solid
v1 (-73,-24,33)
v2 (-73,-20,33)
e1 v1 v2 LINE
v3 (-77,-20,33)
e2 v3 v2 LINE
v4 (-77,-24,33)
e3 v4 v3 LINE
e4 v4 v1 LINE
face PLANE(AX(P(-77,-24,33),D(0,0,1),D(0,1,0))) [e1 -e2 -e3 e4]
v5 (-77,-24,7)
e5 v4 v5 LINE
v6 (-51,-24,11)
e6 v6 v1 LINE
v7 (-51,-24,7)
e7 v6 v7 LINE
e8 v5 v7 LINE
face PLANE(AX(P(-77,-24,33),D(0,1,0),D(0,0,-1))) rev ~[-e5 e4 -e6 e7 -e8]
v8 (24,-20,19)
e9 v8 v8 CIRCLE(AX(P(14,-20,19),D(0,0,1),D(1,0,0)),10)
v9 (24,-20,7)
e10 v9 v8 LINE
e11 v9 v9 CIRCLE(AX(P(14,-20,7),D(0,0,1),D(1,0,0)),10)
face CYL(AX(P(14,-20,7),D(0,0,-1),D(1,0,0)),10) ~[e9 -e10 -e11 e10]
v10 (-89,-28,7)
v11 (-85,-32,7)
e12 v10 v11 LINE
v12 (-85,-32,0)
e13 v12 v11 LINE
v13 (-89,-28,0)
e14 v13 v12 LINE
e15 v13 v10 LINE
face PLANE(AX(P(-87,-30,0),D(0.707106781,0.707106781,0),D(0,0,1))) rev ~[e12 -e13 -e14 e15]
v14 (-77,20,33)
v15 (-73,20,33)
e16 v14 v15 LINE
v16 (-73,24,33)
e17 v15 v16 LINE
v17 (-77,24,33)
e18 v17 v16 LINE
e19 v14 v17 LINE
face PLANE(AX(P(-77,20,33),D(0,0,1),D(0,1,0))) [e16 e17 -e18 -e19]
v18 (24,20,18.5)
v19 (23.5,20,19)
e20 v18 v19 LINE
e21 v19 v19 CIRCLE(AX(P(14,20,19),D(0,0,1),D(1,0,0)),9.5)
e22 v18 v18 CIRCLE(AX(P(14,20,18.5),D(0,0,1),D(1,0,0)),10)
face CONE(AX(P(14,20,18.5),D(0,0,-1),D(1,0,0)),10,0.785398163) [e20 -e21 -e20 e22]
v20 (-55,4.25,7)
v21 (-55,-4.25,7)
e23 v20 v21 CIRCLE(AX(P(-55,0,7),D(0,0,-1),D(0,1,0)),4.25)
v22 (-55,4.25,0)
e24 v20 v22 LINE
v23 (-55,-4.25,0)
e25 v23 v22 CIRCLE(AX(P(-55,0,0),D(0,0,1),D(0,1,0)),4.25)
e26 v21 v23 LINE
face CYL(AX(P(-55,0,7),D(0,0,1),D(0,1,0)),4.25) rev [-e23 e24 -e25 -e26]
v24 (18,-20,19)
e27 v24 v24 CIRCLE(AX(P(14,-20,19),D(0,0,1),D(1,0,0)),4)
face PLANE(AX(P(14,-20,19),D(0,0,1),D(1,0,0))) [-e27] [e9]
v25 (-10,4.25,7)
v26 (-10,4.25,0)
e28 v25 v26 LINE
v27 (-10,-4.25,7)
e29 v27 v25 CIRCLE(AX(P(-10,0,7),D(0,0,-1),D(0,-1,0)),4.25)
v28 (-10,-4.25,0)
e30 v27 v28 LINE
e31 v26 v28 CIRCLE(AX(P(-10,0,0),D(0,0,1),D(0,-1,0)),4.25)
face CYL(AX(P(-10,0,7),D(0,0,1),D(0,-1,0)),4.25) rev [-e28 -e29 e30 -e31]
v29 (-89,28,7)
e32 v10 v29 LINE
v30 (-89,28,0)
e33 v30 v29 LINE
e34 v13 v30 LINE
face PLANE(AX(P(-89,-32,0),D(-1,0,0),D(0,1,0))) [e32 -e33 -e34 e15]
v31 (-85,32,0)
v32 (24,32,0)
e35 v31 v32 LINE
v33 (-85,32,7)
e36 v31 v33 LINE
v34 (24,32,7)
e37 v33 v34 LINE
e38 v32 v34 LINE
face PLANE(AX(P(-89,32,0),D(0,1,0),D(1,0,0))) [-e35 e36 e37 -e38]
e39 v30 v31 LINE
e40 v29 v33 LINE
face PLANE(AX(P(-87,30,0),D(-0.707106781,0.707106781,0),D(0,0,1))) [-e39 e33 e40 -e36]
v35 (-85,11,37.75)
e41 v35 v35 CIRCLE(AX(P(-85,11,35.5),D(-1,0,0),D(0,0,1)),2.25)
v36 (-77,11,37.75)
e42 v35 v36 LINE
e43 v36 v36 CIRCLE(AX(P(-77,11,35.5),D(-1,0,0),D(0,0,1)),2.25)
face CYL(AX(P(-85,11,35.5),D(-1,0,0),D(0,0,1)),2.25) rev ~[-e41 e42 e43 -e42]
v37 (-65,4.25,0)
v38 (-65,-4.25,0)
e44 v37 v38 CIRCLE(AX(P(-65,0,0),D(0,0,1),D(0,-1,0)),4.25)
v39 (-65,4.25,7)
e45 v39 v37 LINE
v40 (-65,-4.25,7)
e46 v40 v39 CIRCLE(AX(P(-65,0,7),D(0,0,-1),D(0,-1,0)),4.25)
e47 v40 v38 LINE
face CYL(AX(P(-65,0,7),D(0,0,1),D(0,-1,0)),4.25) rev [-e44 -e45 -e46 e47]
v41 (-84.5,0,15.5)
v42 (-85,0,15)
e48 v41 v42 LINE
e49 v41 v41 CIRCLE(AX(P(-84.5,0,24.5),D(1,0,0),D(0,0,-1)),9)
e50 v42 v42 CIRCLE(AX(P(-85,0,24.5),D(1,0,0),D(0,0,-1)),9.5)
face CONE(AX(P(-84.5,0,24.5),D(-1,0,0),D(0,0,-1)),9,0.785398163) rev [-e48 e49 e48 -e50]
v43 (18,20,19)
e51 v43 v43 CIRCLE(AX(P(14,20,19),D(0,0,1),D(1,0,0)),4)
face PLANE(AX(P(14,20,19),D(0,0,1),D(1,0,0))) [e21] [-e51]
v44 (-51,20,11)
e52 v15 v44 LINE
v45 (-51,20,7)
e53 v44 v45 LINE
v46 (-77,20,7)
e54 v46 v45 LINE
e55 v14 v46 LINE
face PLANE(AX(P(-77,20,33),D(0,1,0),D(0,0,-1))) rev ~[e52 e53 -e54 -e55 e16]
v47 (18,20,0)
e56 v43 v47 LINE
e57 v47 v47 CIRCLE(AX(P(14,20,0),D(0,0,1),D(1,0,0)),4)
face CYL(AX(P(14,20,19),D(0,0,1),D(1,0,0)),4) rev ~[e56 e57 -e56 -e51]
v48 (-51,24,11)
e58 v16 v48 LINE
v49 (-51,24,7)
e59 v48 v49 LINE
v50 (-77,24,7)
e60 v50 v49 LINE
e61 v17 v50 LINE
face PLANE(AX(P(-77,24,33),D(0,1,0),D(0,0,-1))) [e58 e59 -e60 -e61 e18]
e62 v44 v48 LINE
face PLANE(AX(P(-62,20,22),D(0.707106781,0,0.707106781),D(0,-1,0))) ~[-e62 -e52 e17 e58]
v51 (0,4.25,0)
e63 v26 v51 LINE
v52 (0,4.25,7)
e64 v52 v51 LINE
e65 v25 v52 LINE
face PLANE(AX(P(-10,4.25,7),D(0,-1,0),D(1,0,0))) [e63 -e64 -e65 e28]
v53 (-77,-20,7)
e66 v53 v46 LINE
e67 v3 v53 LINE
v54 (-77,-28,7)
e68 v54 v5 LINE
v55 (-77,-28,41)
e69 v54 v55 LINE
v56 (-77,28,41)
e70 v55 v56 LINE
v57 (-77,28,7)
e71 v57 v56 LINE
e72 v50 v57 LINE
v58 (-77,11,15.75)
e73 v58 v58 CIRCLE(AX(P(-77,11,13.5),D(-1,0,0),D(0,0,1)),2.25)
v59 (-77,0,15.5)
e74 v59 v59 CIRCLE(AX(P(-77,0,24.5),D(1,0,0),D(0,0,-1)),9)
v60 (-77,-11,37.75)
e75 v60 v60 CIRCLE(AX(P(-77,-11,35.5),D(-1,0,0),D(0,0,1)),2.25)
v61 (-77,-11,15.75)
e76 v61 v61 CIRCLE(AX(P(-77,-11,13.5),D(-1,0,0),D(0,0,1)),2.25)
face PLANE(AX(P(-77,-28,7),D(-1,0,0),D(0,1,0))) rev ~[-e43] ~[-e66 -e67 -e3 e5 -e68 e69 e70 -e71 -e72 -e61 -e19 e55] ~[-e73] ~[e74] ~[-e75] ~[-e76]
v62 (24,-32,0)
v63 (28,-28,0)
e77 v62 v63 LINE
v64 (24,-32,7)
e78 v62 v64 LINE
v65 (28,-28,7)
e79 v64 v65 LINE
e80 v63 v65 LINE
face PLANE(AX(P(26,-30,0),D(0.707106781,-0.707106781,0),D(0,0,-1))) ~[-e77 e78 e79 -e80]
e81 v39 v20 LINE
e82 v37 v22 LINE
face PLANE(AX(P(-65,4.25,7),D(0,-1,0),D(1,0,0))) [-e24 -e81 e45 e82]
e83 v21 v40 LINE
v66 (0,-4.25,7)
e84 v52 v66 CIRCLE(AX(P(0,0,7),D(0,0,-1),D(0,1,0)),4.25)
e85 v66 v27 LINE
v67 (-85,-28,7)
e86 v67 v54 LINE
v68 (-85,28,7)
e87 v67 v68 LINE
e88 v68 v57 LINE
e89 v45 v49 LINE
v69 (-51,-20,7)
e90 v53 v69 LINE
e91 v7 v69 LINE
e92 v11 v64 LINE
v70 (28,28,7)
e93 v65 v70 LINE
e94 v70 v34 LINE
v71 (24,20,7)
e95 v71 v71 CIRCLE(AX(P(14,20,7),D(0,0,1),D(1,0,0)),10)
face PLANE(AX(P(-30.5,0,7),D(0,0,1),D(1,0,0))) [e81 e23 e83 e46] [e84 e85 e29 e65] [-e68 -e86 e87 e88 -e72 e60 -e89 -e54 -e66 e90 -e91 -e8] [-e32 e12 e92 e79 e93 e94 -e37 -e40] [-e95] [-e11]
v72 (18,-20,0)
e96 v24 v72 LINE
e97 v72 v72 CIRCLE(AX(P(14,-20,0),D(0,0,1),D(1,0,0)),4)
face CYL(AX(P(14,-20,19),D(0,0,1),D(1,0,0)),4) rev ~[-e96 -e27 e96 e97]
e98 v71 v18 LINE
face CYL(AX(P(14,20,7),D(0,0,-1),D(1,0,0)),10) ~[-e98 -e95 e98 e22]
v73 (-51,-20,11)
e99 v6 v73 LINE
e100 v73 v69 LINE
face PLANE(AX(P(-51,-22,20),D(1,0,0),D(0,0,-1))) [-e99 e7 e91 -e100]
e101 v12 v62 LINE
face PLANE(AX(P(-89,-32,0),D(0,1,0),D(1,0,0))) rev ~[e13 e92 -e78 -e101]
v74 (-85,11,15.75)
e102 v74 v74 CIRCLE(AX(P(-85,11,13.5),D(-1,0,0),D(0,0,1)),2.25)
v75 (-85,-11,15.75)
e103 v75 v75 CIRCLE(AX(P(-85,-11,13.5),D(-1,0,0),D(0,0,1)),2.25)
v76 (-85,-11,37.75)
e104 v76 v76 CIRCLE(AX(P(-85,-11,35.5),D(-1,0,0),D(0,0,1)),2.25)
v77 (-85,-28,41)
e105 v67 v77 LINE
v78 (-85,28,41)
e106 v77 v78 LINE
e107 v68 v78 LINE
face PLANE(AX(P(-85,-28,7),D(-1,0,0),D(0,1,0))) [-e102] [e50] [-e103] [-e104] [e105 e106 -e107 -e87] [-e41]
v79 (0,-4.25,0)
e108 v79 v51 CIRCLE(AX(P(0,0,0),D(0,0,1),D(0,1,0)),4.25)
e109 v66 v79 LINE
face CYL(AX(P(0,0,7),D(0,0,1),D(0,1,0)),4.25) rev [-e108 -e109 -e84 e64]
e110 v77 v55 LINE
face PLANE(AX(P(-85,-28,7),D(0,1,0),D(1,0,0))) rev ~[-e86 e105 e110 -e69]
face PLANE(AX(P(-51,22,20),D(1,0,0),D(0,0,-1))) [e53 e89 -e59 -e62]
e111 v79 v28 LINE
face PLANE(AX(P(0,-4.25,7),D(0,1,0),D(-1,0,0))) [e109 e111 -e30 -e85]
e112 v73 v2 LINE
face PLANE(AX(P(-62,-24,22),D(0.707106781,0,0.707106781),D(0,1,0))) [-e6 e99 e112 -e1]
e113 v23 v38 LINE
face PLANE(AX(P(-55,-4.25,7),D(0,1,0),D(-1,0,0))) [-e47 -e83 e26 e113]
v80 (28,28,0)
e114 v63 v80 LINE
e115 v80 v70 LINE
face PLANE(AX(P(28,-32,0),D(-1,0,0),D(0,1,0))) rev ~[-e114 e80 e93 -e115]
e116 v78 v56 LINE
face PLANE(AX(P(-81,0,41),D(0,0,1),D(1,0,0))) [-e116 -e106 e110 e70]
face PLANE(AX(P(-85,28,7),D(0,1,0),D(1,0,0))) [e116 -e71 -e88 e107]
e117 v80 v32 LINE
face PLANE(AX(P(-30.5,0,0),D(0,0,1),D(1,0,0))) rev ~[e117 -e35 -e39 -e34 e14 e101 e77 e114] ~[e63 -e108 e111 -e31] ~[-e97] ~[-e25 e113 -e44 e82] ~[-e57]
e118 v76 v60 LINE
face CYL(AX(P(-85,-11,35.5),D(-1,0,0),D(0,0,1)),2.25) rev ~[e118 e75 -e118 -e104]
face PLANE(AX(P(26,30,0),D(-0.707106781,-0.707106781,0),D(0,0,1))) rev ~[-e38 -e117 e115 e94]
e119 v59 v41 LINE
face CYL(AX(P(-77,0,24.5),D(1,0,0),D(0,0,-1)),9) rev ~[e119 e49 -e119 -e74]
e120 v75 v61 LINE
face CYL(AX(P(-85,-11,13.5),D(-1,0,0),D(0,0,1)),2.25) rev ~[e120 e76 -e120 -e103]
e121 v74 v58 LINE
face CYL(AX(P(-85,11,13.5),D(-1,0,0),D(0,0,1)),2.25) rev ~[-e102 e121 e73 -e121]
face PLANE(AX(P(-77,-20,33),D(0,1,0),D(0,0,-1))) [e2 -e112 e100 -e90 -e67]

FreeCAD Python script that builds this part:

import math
import FreeCAD as App
import Part
import Sketcher
from FreeCAD import Vector


def edges_at(feature, points):
    """Names of the edges that pass closest to the given points."""
    edges = feature.Shape.Edges
    near = lambda p: min(range(len(edges)), key=lambda i: edges[i].distToShape(Part.Vertex(*p))[0])
    return sorted({f"Edge{near(p) + 1}" for p in points})


def add_polygon(sketch, points):
    """Adds a closed chain of lines whose ends are joined by coincident constraints."""
    first, n = sketch.GeometryCount, len(points)
    for a, b in zip(points, points[1:] + points[:1]):
        sketch.addGeometry(Part.LineSegment(App.Vector(*a, 0), App.Vector(*b, 0)), False)
    for i in range(n):
        sketch.addConstraint(Sketcher.Constraint("Coincident", first + i, 2, first + (i + 1) % n, 1))

doc = App.newDocument("Part")
body = doc.addObject("PartDesign::Body", "Body")

# Sketch on XY plane
sketch1 = body.newObject("Sketcher::SketchObject", "Sketch")
sketch1.AttachmentSupport = (doc.getObject("XY_Plane"), [""])
sketch1.MapMode = "FlatFace"
add_polygon(sketch1, [(-89, 32), (-89, -32), (28, -32), (28, 32)])  # lines 0-3
sketch1.addConstraint(Sketcher.Constraint("Vertical", 0))
sketch1.addConstraint(Sketcher.Constraint("Horizontal", 1))
sketch1.addConstraint(Sketcher.Constraint("Vertical", 2))
sketch1.addConstraint(Sketcher.Constraint("Horizontal", 3))
sketch1.addConstraint(Sketcher.Constraint("DistanceX", 1, 1, 1, 2, 117.0))
sketch1.addConstraint(Sketcher.Constraint("DistanceY", 0, 2, 0, 1, 64.0))
sketch1.addConstraint(Sketcher.Constraint("DistanceX", 0, 2, -1, 1, 89.0))
sketch1.addConstraint(Sketcher.Constraint("DistanceY", 0, 2, -1, 1, 32.0))
pad1 = body.newObject("PartDesign::Pad", "Pad")
pad1.Profile = sketch1
pad1.Length = 7
doc.recompute()

chamfer = body.newObject("PartDesign::Chamfer", "Chamfer")
chamfer.Base = (pad1, edges_at(pad1, [
    (-89, 32, 3.5),
    (28, 32, 3.5),
    (28, -32, 3.5),
    (-89, -32, 3.5),
]))
chamfer.Size = 4

# Sketch on XY plane
sketch2 = body.newObject("Sketcher::SketchObject", "Sketch001")
sketch2.AttachmentSupport = (doc.getObject("XY_Plane"), [""])
sketch2.MapMode = "FlatFace"
sketch2.AttachmentOffset = App.Placement(Vector(0, 0, 7), App.Rotation())
sketch2.addGeometry(Part.Circle(Vector(14, 20, 0), Vector(0, 0, 1), 10), False)
sketch2.addConstraint(Sketcher.Constraint("Diameter", 0, 20.0))
sketch2.addConstraint(Sketcher.Constraint("DistanceX", -1, 1, 0, 3, 14.0))
sketch2.addConstraint(Sketcher.Constraint("DistanceY", -1, 1, 0, 3, 20.0))
pad2 = body.newObject("PartDesign::Pad", "Pad001")
pad2.Profile = sketch2
pad2.Length = 12
doc.recompute()

chamfer2 = body.newObject("PartDesign::Chamfer", "Chamfer001")
chamfer2.Base = (pad2, edges_at(pad2, [(4, 20, 19)]))
chamfer2.Size = 0.5

# Sketch on XY plane
sketch3 = body.newObject("Sketcher::SketchObject", "Sketch002")
sketch3.AttachmentSupport = (doc.getObject("XY_Plane"), [""])
sketch3.MapMode = "FlatFace"
sketch3.AttachmentOffset = App.Placement(Vector(0, 0, 7), App.Rotation())
sketch3.addGeometry(Part.Circle(Vector(14, -20, 0), Vector(0, 0, 1), 10), False)
sketch3.addConstraint(Sketcher.Constraint("Diameter", 0, 20.0))
sketch3.addConstraint(Sketcher.Constraint("DistanceX", -1, 1, 0, 3, 14.0))
sketch3.addConstraint(Sketcher.Constraint("DistanceY", 0, 3, -1, 1, 20.0))
pad3 = body.newObject("PartDesign::Pad", "Pad002")
pad3.Profile = sketch3
pad3.Length = 12

# Sketch on XY plane
sketch4 = body.newObject("Sketcher::SketchObject", "Sketch003")
sketch4.AttachmentSupport = (doc.getObject("XY_Plane"), [""])
sketch4.MapMode = "FlatFace"
sketch4.AttachmentOffset = App.Placement(Vector(0, 0, 7), App.Rotation())
add_polygon(sketch4, [(-85, 28), (-85, -28), (-77, -28), (-77, 28)])  # lines 0-3
sketch4.addConstraint(Sketcher.Constraint("Vertical", 0))
sketch4.addConstraint(Sketcher.Constraint("Horizontal", 1))
sketch4.addConstraint(Sketcher.Constraint("Vertical", 2))
sketch4.addConstraint(Sketcher.Constraint("Horizontal", 3))
sketch4.addConstraint(Sketcher.Constraint("DistanceX", 1, 1, 1, 2, 8.0))
sketch4.addConstraint(Sketcher.Constraint("DistanceY", 0, 2, 0, 1, 56.0))
sketch4.addConstraint(Sketcher.Constraint("DistanceX", 0, 2, -1, 1, 85.0))
sketch4.addConstraint(Sketcher.Constraint("DistanceY", 0, 2, -1, 1, 28.0))
pad4 = body.newObject("PartDesign::Pad", "Pad003")
pad4.Profile = sketch4
pad4.Length = 34

# Sketch on YZ plane
sketch5 = body.newObject("Sketcher::SketchObject", "Sketch004")
sketch5.AttachmentSupport = (doc.getObject("YZ_Plane"), [""])
sketch5.MapMode = "FlatFace"
sketch5.AttachmentOffset = App.Placement(Vector(0, 0, -77), App.Rotation())
add_polygon(sketch5, [(-20, 33), (-24, 33), (-24, 7), (-20, 7)])  # lines 0-3
sketch5.addConstraint(Sketcher.Constraint("Horizontal", 0))
sketch5.addConstraint(Sketcher.Constraint("Vertical", 1))
sketch5.addConstraint(Sketcher.Constraint("Horizontal", 2))
sketch5.addConstraint(Sketcher.Constraint("Vertical", 3))
sketch5.addConstraint(Sketcher.Constraint("DistanceX", 0, 2, 0, 1, 4.0))
sketch5.addConstraint(Sketcher.Constraint("DistanceY", 1, 2, 1, 1, 26.0))
sketch5.addConstraint(Sketcher.Constraint("DistanceX", 0, 2, -1, 1, 24.0))
sketch5.addConstraint(Sketcher.Constraint("DistanceY", -1, 1, 0, 2, 33.0))
pad5 = body.newObject("PartDesign::Pad", "Pad004")
pad5.Profile = sketch5
pad5.Length = 26
doc.recompute()

chamfer3 = body.newObject("PartDesign::Chamfer", "Chamfer002")
chamfer3.Base = (pad5, edges_at(pad5, [(-51, -22, 33)]))
chamfer3.Size = 22

# Sketch on YZ plane
sketch6 = body.newObject("Sketcher::SketchObject", "Sketch005")
sketch6.AttachmentSupport = (doc.getObject("YZ_Plane"), [""])
sketch6.MapMode = "FlatFace"
sketch6.AttachmentOffset = App.Placement(Vector(0, 0, -77), App.Rotation())
add_polygon(sketch6, [(24, 33), (20, 33), (20, 7), (24, 7)])  # lines 0-3
sketch6.addConstraint(Sketcher.Constraint("Horizontal", 0))
sketch6.addConstraint(Sketcher.Constraint("Vertical", 1))
sketch6.addConstraint(Sketcher.Constraint("Horizontal", 2))
sketch6.addConstraint(Sketcher.Constraint("Vertical", 3))
sketch6.addConstraint(Sketcher.Constraint("DistanceX", 0, 2, 0, 1, 4.0))
sketch6.addConstraint(Sketcher.Constraint("DistanceY", 1, 2, 1, 1, 26.0))
sketch6.addConstraint(Sketcher.Constraint("DistanceX", -1, 1, 0, 2, 20.0))
sketch6.addConstraint(Sketcher.Constraint("DistanceY", -1, 1, 0, 2, 33.0))
pad6 = body.newObject("PartDesign::Pad", "Pad005")
pad6.Profile = sketch6
pad6.Length = 26
doc.recompute()

chamfer4 = body.newObject("PartDesign::Chamfer", "Chamfer003")
chamfer4.Base = (pad6, edges_at(pad6, [(-51, 22, 33)]))
chamfer4.Size = 22

# Sketch on YZ plane
sketch7 = body.newObject("Sketcher::SketchObject", "Sketch006")
sketch7.AttachmentSupport = (doc.getObject("YZ_Plane"), [""])
sketch7.MapMode = "FlatFace"
sketch7.AttachmentOffset = App.Placement(Vector(0, 0, -77), App.Rotation())
sketch7.addGeometry(Part.Circle(Vector(0, 24, 0), Vector(0, 0, 1), 9), False)
sketch7.addConstraint(Sketcher.Constraint("PointOnObject", 0, 3, -2))
sketch7.addConstraint(Sketcher.Constraint("Diameter", 0, 18.0))
sketch7.addConstraint(Sketcher.Constraint("DistanceY", -1, 1, 0, 3, 24.5))
pocket1 = body.newObject("PartDesign::Pocket", "Pocket")
pocket1.Profile = sketch7
pocket1.Type = "ThroughAll"
doc.recompute()

chamfer5 = body.newObject("PartDesign::Chamfer", "Chamfer004")
chamfer5.Base = (pocket1, edges_at(pocket1, [(-85, 0, 33.5)]))
chamfer5.Size = 0.5

# Sketch on XY plane
sketch8 = body.newObject("Sketcher::SketchObject", "Sketch007")
sketch8.AttachmentSupport = (doc.getObject("XY_Plane"), [""])
sketch8.MapMode = "FlatFace"
sketch8.AttachmentOffset = App.Placement(Vector(0, 0, 19), App.Rotation())
sketch8.addGeometry(Part.Circle(Vector(14, 20, 0), Vector(0, 0, 1), 4), False)
sketch8.addConstraint(Sketcher.Constraint("Diameter", 0, 8.0))
sketch8.addConstraint(Sketcher.Constraint("DistanceX", -1, 1, 0, 3, 14.0))
sketch8.addConstraint(Sketcher.Constraint("DistanceY", -1, 1, 0, 3, 20.0))
pocket2 = body.newObject("PartDesign::Pocket", "Pocket001")
pocket2.Profile = sketch8
pocket2.Type = "ThroughAll"

# Sketch on XY plane
sketch9 = body.newObject("Sketcher::SketchObject", "Sketch008")
sketch9.AttachmentSupport = (doc.getObject("XY_Plane"), [""])
sketch9.MapMode = "FlatFace"
sketch9.AttachmentOffset = App.Placement(Vector(0, 0, 19), App.Rotation())
sketch9.addGeometry(Part.Circle(Vector(14, -20, 0), Vector(0, 0, 1), 4), False)
sketch9.addConstraint(Sketcher.Constraint("Diameter", 0, 8.0))
sketch9.addConstraint(Sketcher.Constraint("DistanceX", -1, 1, 0, 3, 14.0))
sketch9.addConstraint(Sketcher.Constraint("DistanceY", 0, 3, -1, 1, 20.0))
pocket3 = body.newObject("PartDesign::Pocket", "Pocket002")
pocket3.Profile = sketch9
pocket3.Type = "ThroughAll"

# Sketch on YZ plane
sketch10 = body.newObject("Sketcher::SketchObject", "Sketch009")
sketch10.AttachmentSupport = (doc.getObject("YZ_Plane"), [""])
sketch10.MapMode = "FlatFace"
sketch10.AttachmentOffset = App.Placement(Vector(0, 0, -85), App.Rotation())
sketch10.addGeometry(Part.Circle(Vector(11, 35.5, 0), Vector(0, 0, 1), 2.2), False)
sketch10.addGeometry(Part.Circle(Vector(11, 13.5, 0), Vector(0, 0, 1), 2.2), False)
sketch10.addGeometry(Part.Circle(Vector(-11, 13.5, 0), Vector(0, 0, 1), 2.2), False)
sketch10.addGeometry(Part.Circle(Vector(-11, 35.5, 0), Vector(0, 0, 1), 2.2), False)
sketch10.addConstraint(Sketcher.Constraint("Equal", 0, 1))
sketch10.addConstraint(Sketcher.Constraint("Equal", 1, 2))
sketch10.addConstraint(Sketcher.Constraint("Equal", 2, 3))
sketch10.addConstraint(Sketcher.Constraint("Symmetric", 1, 3, 2, 3, -2))
sketch10.addConstraint(Sketcher.Constraint("Symmetric", 0, 3, 3, 3, -2))
sketch10.addConstraint(Sketcher.Constraint("Vertical", 0, 3, 1, 3))
sketch10.addConstraint(Sketcher.Constraint("Diameter", 0, 4.5))
sketch10.addConstraint(Sketcher.Constraint("DistanceX", -1, 1, 0, 3, 11.0))
sketch10.addConstraint(Sketcher.Constraint("DistanceY", 1, 3, 0, 3, 22.0))
sketch10.addConstraint(Sketcher.Constraint("DistanceY", -1, 1, 0, 3, 35.5))
pocket4 = body.newObject("PartDesign::Pocket", "Pocket003")
pocket4.Profile = sketch10
pocket4.Length = 10
pocket4.Reversed = True

# Sketch on XY plane
sketch11 = body.newObject("Sketcher::SketchObject", "Sketch010")
sketch11.AttachmentSupport = (doc.getObject("XY_Plane"), [""])
sketch11.MapMode = "FlatFace"
sketch11.AttachmentOffset = App.Placement(Vector(0, 0, 7), App.Rotation())
sketch11.addGeometry(Part.LineSegment(Vector(0, 4.2, 0), Vector(-10, 4.2, 0)), False)
sketch11.addGeometry(Part.ArcOfCircle(Part.Circle(Vector(-10, 0, 0), Vector(0, 0, 1), 4.2), math.radians(90), math.radians(270)), False)
sketch11.addGeometry(Part.LineSegment(Vector(-10, -4.2, 0), Vector(0, -4.2, 0)), False)
sketch11.addGeometry(Part.ArcOfCircle(Part.Circle(Vector(0, 0, 0), Vector(0, 0, 1), 4.2), math.radians(-90), math.radians(90)), False)
sketch11.addGeometry(Part.LineSegment(Vector(-55, 4.2, 0), Vector(-65, 4.2, 0)), False)
sketch11.addGeometry(Part.ArcOfCircle(Part.Circle(Vector(-65, 0, 0), Vector(0, 0, 1), 4.2), math.radians(90), math.radians(270)), False)
sketch11.addGeometry(Part.LineSegment(Vector(-65, -4.2, 0), Vector(-55, -4.2, 0)), False)
sketch11.addGeometry(Part.ArcOfCircle(Part.Circle(Vector(-55, 0, 0), Vector(0, 0, 1), 4.2), math.radians(-90), math.radians(90)), False)
sketch11.addConstraint(Sketcher.Constraint("Tangent", 0, 2, 1, 1))
sketch11.addConstraint(Sketcher.Constraint("Tangent", 1, 2, 2, 1))
sketch11.addConstraint(Sketcher.Constraint("Tangent", 2, 2, 3, 1))
sketch11.addConstraint(Sketcher.Constraint("Tangent", 3, 2, 0, 1))
sketch11.addConstraint(Sketcher.Constraint("Tangent", 4, 2, 5, 1))
sketch11.addConstraint(Sketcher.Constraint("Tangent", 5, 2, 6, 1))
sketch11.addConstraint(Sketcher.Constraint("Tangent", 6, 2, 7, 1))
sketch11.addConstraint(Sketcher.Constraint("Tangent", 7, 2, 4, 1))
sketch11.addConstraint(Sketcher.Constraint("Horizontal", 0))
sketch11.addConstraint(Sketcher.Constraint("Horizontal", 2))
sketch11.addConstraint(Sketcher.Constraint("Horizontal", 4))
sketch11.addConstraint(Sketcher.Constraint("Horizontal", 6))
sketch11.addConstraint(Sketcher.Constraint("Coincident", 3, 3, -1, 1))
sketch11.addConstraint(Sketcher.Constraint("Equal", 3, 5))
sketch11.addConstraint(Sketcher.Constraint("PointOnObject", 5, 3, -1))
sketch11.addConstraint(Sketcher.Constraint("Equal", 2, 4))
sketch11.addConstraint(Sketcher.Constraint("DistanceX", 0, 2, 0, 1, 10.0))
sketch11.addConstraint(Sketcher.Constraint("Radius", 1, 4.25))
sketch11.addConstraint(Sketcher.Constraint("DistanceX", 5, 3, -1, 1, 65.0))
pocket5 = body.newObject("PartDesign::Pocket", "Pocket004")
pocket5.Profile = sketch11
pocket5.Length = 10

doc.recompute()
